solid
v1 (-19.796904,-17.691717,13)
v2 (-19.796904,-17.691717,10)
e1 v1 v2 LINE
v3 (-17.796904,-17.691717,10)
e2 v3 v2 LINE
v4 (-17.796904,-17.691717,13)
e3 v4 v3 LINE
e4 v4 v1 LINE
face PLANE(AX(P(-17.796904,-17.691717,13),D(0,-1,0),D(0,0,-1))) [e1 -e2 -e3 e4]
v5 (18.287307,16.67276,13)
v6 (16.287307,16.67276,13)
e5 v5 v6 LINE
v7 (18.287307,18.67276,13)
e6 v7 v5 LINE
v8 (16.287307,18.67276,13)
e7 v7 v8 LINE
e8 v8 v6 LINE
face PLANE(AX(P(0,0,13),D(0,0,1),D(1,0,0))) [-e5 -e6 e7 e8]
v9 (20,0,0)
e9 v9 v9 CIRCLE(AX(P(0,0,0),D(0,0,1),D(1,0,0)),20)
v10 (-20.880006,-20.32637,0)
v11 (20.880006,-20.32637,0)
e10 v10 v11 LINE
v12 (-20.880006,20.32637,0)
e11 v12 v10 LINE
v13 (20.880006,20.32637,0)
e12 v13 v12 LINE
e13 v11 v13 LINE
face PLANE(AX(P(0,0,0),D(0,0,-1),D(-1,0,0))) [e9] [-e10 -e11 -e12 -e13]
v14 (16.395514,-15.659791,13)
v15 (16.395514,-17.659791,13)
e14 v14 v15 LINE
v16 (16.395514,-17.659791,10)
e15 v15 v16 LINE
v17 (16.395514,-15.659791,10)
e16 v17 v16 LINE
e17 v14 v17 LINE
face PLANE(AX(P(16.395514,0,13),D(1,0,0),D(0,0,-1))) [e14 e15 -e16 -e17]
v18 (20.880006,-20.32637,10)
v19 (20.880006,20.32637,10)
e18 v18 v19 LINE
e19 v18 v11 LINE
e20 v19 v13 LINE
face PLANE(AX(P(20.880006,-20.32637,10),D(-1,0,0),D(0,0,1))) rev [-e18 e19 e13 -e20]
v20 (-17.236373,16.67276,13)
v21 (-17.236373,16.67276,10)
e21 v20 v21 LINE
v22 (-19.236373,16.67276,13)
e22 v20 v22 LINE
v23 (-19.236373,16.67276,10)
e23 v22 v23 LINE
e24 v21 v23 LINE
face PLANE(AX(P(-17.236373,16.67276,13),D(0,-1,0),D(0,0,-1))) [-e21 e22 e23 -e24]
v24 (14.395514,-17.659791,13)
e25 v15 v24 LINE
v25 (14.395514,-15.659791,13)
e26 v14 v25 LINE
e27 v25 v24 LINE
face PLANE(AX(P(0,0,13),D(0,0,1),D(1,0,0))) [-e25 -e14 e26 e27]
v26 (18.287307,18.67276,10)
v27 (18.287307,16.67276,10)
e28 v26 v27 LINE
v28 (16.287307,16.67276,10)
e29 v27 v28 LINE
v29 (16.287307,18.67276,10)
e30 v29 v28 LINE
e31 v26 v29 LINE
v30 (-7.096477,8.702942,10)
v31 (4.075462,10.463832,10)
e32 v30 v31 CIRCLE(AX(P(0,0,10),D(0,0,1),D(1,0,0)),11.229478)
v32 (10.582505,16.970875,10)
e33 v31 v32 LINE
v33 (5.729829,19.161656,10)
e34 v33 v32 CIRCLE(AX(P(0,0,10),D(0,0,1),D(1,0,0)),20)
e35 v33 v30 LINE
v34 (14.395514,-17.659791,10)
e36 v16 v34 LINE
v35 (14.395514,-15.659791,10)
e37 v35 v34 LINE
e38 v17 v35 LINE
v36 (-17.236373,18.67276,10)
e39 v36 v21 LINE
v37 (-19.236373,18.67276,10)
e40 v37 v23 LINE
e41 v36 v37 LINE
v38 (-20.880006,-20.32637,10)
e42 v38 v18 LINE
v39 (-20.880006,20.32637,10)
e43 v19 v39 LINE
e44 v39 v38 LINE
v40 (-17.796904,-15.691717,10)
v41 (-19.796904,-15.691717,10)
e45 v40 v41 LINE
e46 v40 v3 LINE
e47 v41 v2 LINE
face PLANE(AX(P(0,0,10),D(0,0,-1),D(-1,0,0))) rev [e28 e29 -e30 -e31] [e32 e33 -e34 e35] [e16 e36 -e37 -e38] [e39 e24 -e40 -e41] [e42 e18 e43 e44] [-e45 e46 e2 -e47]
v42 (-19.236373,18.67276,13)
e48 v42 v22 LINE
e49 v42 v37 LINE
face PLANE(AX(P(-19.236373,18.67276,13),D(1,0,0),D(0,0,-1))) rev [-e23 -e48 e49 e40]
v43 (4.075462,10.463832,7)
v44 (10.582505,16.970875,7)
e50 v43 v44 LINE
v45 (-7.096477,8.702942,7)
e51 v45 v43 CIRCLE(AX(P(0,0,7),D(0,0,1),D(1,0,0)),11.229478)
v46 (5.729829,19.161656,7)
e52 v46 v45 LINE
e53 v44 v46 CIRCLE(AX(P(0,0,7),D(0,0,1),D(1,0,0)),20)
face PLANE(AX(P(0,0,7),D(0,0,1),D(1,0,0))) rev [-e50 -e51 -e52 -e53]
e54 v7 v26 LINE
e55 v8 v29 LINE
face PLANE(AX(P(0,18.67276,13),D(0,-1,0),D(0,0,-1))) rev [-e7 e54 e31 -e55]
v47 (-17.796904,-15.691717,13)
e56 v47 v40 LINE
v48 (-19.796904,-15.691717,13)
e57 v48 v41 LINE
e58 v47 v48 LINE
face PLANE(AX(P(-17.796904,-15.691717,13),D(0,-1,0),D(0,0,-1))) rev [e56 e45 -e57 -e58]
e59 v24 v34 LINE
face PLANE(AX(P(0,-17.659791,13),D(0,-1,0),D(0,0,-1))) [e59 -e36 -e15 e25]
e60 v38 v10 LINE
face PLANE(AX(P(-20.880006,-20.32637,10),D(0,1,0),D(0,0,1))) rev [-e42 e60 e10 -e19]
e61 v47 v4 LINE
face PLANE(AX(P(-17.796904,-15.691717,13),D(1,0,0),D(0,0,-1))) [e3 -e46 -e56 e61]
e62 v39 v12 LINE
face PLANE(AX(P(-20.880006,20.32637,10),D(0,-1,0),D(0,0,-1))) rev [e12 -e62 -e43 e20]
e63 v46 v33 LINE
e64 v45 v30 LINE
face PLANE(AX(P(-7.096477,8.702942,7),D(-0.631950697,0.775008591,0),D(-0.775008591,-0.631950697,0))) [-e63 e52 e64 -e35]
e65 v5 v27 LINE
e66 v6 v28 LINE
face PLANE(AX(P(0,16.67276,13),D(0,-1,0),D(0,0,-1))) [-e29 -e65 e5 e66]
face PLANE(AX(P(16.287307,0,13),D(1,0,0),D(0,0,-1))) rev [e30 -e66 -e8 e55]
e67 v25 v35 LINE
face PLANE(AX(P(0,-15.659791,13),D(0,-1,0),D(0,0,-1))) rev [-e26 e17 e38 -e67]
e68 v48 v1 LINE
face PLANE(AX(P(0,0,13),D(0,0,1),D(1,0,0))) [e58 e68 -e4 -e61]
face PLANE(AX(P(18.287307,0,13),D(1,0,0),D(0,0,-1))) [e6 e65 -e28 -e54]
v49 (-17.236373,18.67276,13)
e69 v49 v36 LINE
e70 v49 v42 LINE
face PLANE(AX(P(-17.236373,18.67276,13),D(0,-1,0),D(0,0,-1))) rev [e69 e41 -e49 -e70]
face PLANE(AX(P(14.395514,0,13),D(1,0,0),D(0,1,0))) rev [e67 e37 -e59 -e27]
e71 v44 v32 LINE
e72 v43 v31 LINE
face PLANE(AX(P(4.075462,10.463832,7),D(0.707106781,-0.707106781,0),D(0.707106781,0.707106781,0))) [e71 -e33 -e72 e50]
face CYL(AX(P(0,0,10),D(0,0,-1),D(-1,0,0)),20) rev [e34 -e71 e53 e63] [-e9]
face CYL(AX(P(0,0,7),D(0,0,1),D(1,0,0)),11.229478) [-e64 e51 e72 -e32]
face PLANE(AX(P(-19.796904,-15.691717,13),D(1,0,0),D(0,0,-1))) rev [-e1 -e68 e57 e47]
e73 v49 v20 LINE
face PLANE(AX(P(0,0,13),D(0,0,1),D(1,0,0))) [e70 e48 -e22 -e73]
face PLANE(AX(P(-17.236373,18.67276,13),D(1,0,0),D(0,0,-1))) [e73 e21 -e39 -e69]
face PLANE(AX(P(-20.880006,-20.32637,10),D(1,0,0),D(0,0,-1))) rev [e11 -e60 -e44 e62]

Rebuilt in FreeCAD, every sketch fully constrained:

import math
import FreeCAD as App
import Part
import Sketcher
from FreeCAD import Vector
Q = App.Units.Quantity

doc = App.newDocument("Part")
body = doc.addObject("PartDesign::Body", "Body")

sketch1 = body.newObject("Sketcher::SketchObject", "Sketch")
sketch1.AttachmentSupport = (doc.getObject("XY_Plane"), [""])
sketch1.MapMode = "FlatFace"
sketch1.addGeometry([
    Part.LineSegment(Vector(-20.880006, 20.32637, 0), Vector(-20.880006, -20.32637, 0)),
    Part.LineSegment(Vector(-20.880006, -20.32637, 0), Vector(20.880006, -20.32637, 0)),
    Part.LineSegment(Vector(20.880006, -20.32637, 0), Vector(20.880006, 20.32637, 0)),
    Part.LineSegment(Vector(20.880006, 20.32637, 0), Vector(-20.880006, 20.32637, 0)),
    Part.Circle(Vector(0, 0, 0), Vector(0, 0, 1), 20),
], False)
sketch1.addConstraint([
    Sketcher.Constraint("Coincident", 0, 2, 1, 1),
    Sketcher.Constraint("Coincident", 1, 2, 2, 1),
    Sketcher.Constraint("Coincident", 2, 2, 3, 1),
    Sketcher.Constraint("Coincident", 3, 2, 0, 1),
    Sketcher.Constraint("Vertical", 0),
    Sketcher.Constraint("Horizontal", 1),
    Sketcher.Constraint("Vertical", 2),
    Sketcher.Constraint("Horizontal", 3),
    Sketcher.Constraint("Coincident", 4, 3, -1, 1),
    Sketcher.Constraint("Symmetric", 0, 2, 2, 2, -1, 1),
    Sketcher.Constraint("Diameter", 4, Q("40 mm")),
    Sketcher.Constraint("DistanceY", 0, 2, 0, 1, Q("40.65274 mm")),
    Sketcher.Constraint("DistanceX", 1, 1, 1, 2, Q("41.760013 mm")),
])
pad1 = body.newObject("PartDesign::Pad", "Pad")
pad1.Profile = sketch1
pad1.Length = 10

sketch2 = body.newObject("Sketcher::SketchObject", "Sketch001")
sketch2.AttachmentSupport = (doc.getObject("XY_Plane"), [""])
sketch2.MapMode = "FlatFace"
sketch2.AttachmentOffset = App.Placement(Vector(0, 0, 7), App.Rotation())
sketch2.addGeometry([
    Part.LineSegment(Vector(5.729829, 19.161656, 0), Vector(-7.096477, 8.702942, 0)),
    Part.ArcOfCircle(Part.Circle(Vector(0, 0, 0), Vector(0, 0, 1), 11.229478), math.radians(129.194188), math.radians(428.720038)),
    Part.LineSegment(Vector(4.075462, 10.463832, 0), Vector(10.582505, 16.970875, 0)),
    Part.ArcOfCircle(Part.Circle(Vector(0, 0, 0), Vector(0, 0, 1), 20), math.radians(58.05363), math.radians(73.351978)),
], False)
sketch2.addConstraint([
    Sketcher.Constraint("Tangent", 0, 2, 1, 1),
    Sketcher.Constraint("Coincident", 1, 2, 2, 1),
    Sketcher.Constraint("Coincident", 2, 2, 3, 1),
    Sketcher.Constraint("Coincident", 3, 2, 0, 1),
    Sketcher.Constraint("Coincident", 1, 3, -1, 1),
    Sketcher.Constraint("Coincident", 3, 3, -1, 1),
    Sketcher.Constraint("Radius", 3, Q("20 mm")),
    Sketcher.Constraint("Angle", 2, Q("45 deg")),
    Sketcher.Constraint("Radius", 1, Q("11.229478 mm")),
    Sketcher.Constraint("DistanceX", -1, 1, 3, 2, Q("5.729829 mm")),
    Sketcher.Constraint("DistanceX", 0, 2, 1, 2, Q("11.171939 mm")),
])
pad2 = body.newObject("PartDesign::Pad", "Pad001")
pad2.Profile = sketch2
pad2.Length = 3

sketch3 = body.newObject("Sketcher::SketchObject", "Sketch002")
sketch3.AttachmentSupport = (doc.getObject("XY_Plane"), [""])
sketch3.MapMode = "FlatFace"
sketch3.AttachmentOffset = App.Placement(Vector(0, 0, 10), App.Rotation())
sketch3.addGeometry([
    Part.LineSegment(Vector(14.395514, -15.659791, 0), Vector(14.395514, -17.659791, 0)),
    Part.LineSegment(Vector(14.395514, -17.659791, 0), Vector(16.395514, -17.659791, 0)),
    Part.LineSegment(Vector(16.395514, -17.659791, 0), Vector(16.395514, -15.659791, 0)),
    Part.LineSegment(Vector(16.395514, -15.659791, 0), Vector(14.395514, -15.659791, 0)),
    Part.LineSegment(Vector(16.287307, 18.67276, 0), Vector(16.287307, 16.67276, 0)),
    Part.LineSegment(Vector(16.287307, 16.67276, 0), Vector(18.287307, 16.67276, 0)),
    Part.LineSegment(Vector(18.287307, 16.67276, 0), Vector(18.287307, 18.67276, 0)),
    Part.LineSegment(Vector(18.287307, 18.67276, 0), Vector(16.287307, 18.67276, 0)),
    Part.LineSegment(Vector(-19.796904, -15.691717, 0), Vector(-19.796904, -17.691717, 0)),
    Part.LineSegment(Vector(-19.796904, -17.691717, 0), Vector(-17.796904, -17.691717, 0)),
    Part.LineSegment(Vector(-17.796904, -17.691717, 0), Vector(-17.796904, -15.691717, 0)),
    Part.LineSegment(Vector(-17.796904, -15.691717, 0), Vector(-19.796904, -15.691717, 0)),
    Part.LineSegment(Vector(-19.236373, 18.67276, 0), Vector(-19.236373, 16.67276, 0)),
    Part.LineSegment(Vector(-19.236373, 16.67276, 0), Vector(-17.236373, 16.67276, 0)),
    Part.LineSegment(Vector(-17.236373, 16.67276, 0), Vector(-17.236373, 18.67276, 0)),
    Part.LineSegment(Vector(-17.236373, 18.67276, 0), Vector(-19.236373, 18.67276, 0)),
], False)
sketch3.addConstraint([
    Sketcher.Constraint("Coincident", 0, 2, 1, 1),
    Sketcher.Constraint("Coincident", 1, 2, 2, 1),
    Sketcher.Constraint("Coincident", 2, 2, 3, 1),
    Sketcher.Constraint("Coincident", 3, 2, 0, 1),
    Sketcher.Constraint("Coincident", 4, 2, 5, 1),
    Sketcher.Constraint("Coincident", 5, 2, 6, 1),
    Sketcher.Constraint("Coincident", 6, 2, 7, 1),
    Sketcher.Constraint("Coincident", 7, 2, 4, 1),
    Sketcher.Constraint("Coincident", 8, 2, 9, 1),
    Sketcher.Constraint("Coincident", 9, 2, 10, 1),
    Sketcher.Constraint("Coincident", 10, 2, 11, 1),
    Sketcher.Constraint("Coincident", 11, 2, 8, 1),
    Sketcher.Constraint("Coincident", 12, 2, 13, 1),
    Sketcher.Constraint("Coincident", 13, 2, 14, 1),
    Sketcher.Constraint("Coincident", 14, 2, 15, 1),
    Sketcher.Constraint("Coincident", 15, 2, 12, 1),
    Sketcher.Constraint("Vertical", 0),
    Sketcher.Constraint("Horizontal", 1),
    Sketcher.Constraint("Vertical", 2),
    Sketcher.Constraint("Horizontal", 3),
    Sketcher.Constraint("Vertical", 4),
    Sketcher.Constraint("Horizontal", 5),
    Sketcher.Constraint("Vertical", 6),
    Sketcher.Constraint("Horizontal", 7),
    Sketcher.Constraint("Vertical", 8),
    Sketcher.Constraint("Horizontal", 9),
    Sketcher.Constraint("Vertical", 10),
    Sketcher.Constraint("Horizontal", 11),
    Sketcher.Constraint("Vertical", 12),
    Sketcher.Constraint("Horizontal", 13),
    Sketcher.Constraint("Vertical", 14),
    Sketcher.Constraint("Horizontal", 15),
    Sketcher.Constraint("Horizontal", 5, 2, 12, 2),
    Sketcher.Constraint("Horizontal", 7, 2, 14, 2),
    Sketcher.Constraint("Equal", 3, 5),
    Sketcher.Constraint("Equal", 7, 9),
    Sketcher.Constraint("Equal", 11, 13),
    Sketcher.Constraint("Equal", 15, 0),
    Sketcher.Constraint("Equal", 2, 4),
    Sketcher.Constraint("Equal", 6, 8),
    Sketcher.Constraint("DistanceX", 1, 1, 1, 2, Q("2 mm")),
    Sketcher.Constraint("DistanceY", 0, 2, -1, 1, Q("17.659791 mm")),
    Sketcher.Constraint("DistanceY", -1, 1, 4, 2, Q("16.67276 mm")),
    Sketcher.Constraint("DistanceX", 8, 2, 0, 2, Q("34.192418 mm")),
    Sketcher.Constraint("DistanceX", 8, 2, 4, 2, Q("36.084212 mm")),
    Sketcher.Constraint("DistanceX", 11, 2, 12, 2, Q("0.560531 mm")),
    Sketcher.Constraint("DistanceX", -1, 1, 0, 2, Q("14.395514 mm")),
    Sketcher.Constraint("DistanceY", 8, 2, -1, 1, Q("17.691717 mm")),
])
pad3 = body.newObject("PartDesign::Pad", "Pad002")
pad3.Profile = sketch3
pad3.Length = 3

doc.recompute()
